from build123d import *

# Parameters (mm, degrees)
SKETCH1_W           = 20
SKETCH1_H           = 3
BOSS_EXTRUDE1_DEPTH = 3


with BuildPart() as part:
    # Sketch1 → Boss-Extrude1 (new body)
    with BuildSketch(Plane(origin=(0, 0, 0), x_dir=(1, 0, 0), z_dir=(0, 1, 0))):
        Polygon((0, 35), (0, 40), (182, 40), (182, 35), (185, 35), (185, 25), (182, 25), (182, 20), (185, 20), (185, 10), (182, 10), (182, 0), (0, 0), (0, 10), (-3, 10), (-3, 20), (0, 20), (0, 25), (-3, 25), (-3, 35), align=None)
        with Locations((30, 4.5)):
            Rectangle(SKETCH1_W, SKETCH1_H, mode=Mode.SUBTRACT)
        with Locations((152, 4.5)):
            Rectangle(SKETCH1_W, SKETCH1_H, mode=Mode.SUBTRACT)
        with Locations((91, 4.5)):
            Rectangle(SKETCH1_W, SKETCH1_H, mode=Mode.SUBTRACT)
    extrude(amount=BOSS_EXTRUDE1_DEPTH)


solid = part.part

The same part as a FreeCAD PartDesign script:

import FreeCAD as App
import Part
import Sketcher
from FreeCAD import Vector
Q = App.Units.Quantity

doc = App.newDocument("Part")
body = doc.addObject("PartDesign::Body", "Body")

sketch1 = body.newObject("Sketcher::SketchObject", "Sketch")
sketch1.AttachmentSupport = (doc.getObject("XZ_Plane"), [""])
sketch1.MapMode = "FlatFace"
sketch1.addGeometry([
    Part.LineSegment(Vector(0, -40, 0), Vector(0, -35, 0)),
    Part.LineSegment(Vector(0, -35, 0), Vector(-3, -35, 0)),
    Part.LineSegment(Vector(-3, -35, 0), Vector(-3, -25, 0)),
    Part.LineSegment(Vector(-3, -25, 0), Vector(0, -25, 0)),
    Part.LineSegment(Vector(0, -25, 0), Vector(0, -20, 0)),
    Part.LineSegment(Vector(0, -20, 0), Vector(-3, -20, 0)),
    Part.LineSegment(Vector(-3, -20, 0), Vector(-3, -10, 0)),
    Part.LineSegment(Vector(-3, -10, 0), Vector(0, -10, 0)),
    Part.LineSegment(Vector(0, -10, 0), Vector(0, 0, 0)),
    Part.LineSegment(Vector(0, 0, 0), Vector(182, 0, 0)),
    Part.LineSegment(Vector(182, 0, 0), Vector(182, -10, 0)),
    Part.LineSegment(Vector(182, -10, 0), Vector(185, -10, 0)),
    Part.LineSegment(Vector(185, -10, 0), Vector(185, -20, 0)),
    Part.LineSegment(Vector(185, -20, 0), Vector(182, -20, 0)),
    Part.LineSegment(Vector(182, -20, 0), Vector(182, -25, 0)),
    Part.LineSegment(Vector(182, -25, 0), Vector(185, -25, 0)),
    Part.LineSegment(Vector(185, -25, 0), Vector(185, -35, 0)),
    Part.LineSegment(Vector(185, -35, 0), Vector(182, -35, 0)),
    Part.LineSegment(Vector(182, -35, 0), Vector(182, -40, 0)),
    Part.LineSegment(Vector(182, -40, 0), Vector(0, -40, 0)),
    Part.LineSegment(Vector(142, -3, 0), Vector(142, -6, 0)),
    Part.LineSegment(Vector(142, -6, 0), Vector(162, -6, 0)),
    Part.LineSegment(Vector(162, -6, 0), Vector(162, -3, 0)),
    Part.LineSegment(Vector(162, -3, 0), Vector(142, -3, 0)),
    Part.LineSegment(Vector(81, -3, 0), Vector(81, -6, 0)),
    Part.LineSegment(Vector(81, -6, 0), Vector(101, -6, 0)),
    Part.LineSegment(Vector(101, -6, 0), Vector(101, -3, 0)),
    Part.LineSegment(Vector(101, -3, 0), Vector(81, -3, 0)),
    Part.LineSegment(Vector(20, -3, 0), Vector(20, -6, 0)),
    Part.LineSegment(Vector(20, -6, 0), Vector(40, -6, 0)),
    Part.LineSegment(Vector(40, -6, 0), Vector(40, -3, 0)),
    Part.LineSegment(Vector(40, -3, 0), Vector(20, -3, 0)),
], False)
sketch1.addConstraint([
    Sketcher.Constraint("Coincident", 0, 2, 1, 1),
    Sketcher.Constraint("Coincident", 1, 2, 2, 1),
    Sketcher.Constraint("Coincident", 2, 2, 3, 1),
    Sketcher.Constraint("Coincident", 3, 2, 4, 1),
    Sketcher.Constraint("Coincident", 4, 2, 5, 1),
    Sketcher.Constraint("Coincident", 5, 2, 6, 1),
    Sketcher.Constraint("Coincident", 6, 2, 7, 1),
    Sketcher.Constraint("Coincident", 7, 2, 8, 1),
    Sketcher.Constraint("Coincident", 8, 2, 9, 1),
    Sketcher.Constraint("Coincident", 9, 2, 10, 1),
    Sketcher.Constraint("Coincident", 10, 2, 11, 1),
    Sketcher.Constraint("Coincident", 11, 2, 12, 1),
    Sketcher.Constraint("Coincident", 12, 2, 13, 1),
    Sketcher.Constraint("Coincident", 13, 2, 14, 1),
    Sketcher.Constraint("Coincident", 14, 2, 15, 1),
    Sketcher.Constraint("Coincident", 15, 2, 16, 1),
    Sketcher.Constraint("Coincident", 16, 2, 17, 1),
    Sketcher.Constraint("Coincident", 17, 2, 18, 1),
    Sketcher.Constraint("Coincident", 18, 2, 19, 1),
    Sketcher.Constraint("Coincident", 19, 2, 0, 1),
    Sketcher.Constraint("Coincident", 20, 2, 21, 1),
    Sketcher.Constraint("Coincident", 21, 2, 22, 1),
    Sketcher.Constraint("Coincident", 22, 2, 23, 1),
    Sketcher.Constraint("Coincident", 23, 2, 20, 1),
    Sketcher.Constraint("Coincident", 24, 2, 25, 1),
    Sketcher.Constraint("Coincident", 25, 2, 26, 1),
    Sketcher.Constraint("Coincident", 26, 2, 27, 1),
    Sketcher.Constraint("Coincident", 27, 2, 24, 1),
    Sketcher.Constraint("Coincident", 28, 2, 29, 1),
    Sketcher.Constraint("Coincident", 29, 2, 30, 1),
    Sketcher.Constraint("Coincident", 30, 2, 31, 1),
    Sketcher.Constraint("Coincident", 31, 2, 28, 1),
    Sketcher.Constraint("Vertical", 0),
    Sketcher.Constraint("Horizontal", 1),
    Sketcher.Constraint("Vertical", 2),
    Sketcher.Constraint("Horizontal", 3),
    Sketcher.Constraint("Vertical", 4),
    Sketcher.Constraint("Horizontal", 5),
    Sketcher.Constraint("Vertical", 6),
    Sketcher.Constraint("Horizontal", 7),
    Sketcher.Constraint("Vertical", 8),
    Sketcher.Constraint("Horizontal", 9),
    Sketcher.Constraint("Vertical", 10),
    Sketcher.Constraint("Horizontal", 11),
    Sketcher.Constraint("Vertical", 12),
    Sketcher.Constraint("Horizontal", 13),
    Sketcher.Constraint("Vertical", 14),
    Sketcher.Constraint("Horizontal", 15),
    Sketcher.Constraint("Vertical", 16),
    Sketcher.Constraint("Horizontal", 17),
    Sketcher.Constraint("Vertical", 18),
    Sketcher.Constraint("Horizontal", 19),
    Sketcher.Constraint("Vertical", 20),
    Sketcher.Constraint("Horizontal", 21),
    Sketcher.Constraint("Vertical", 22),
    Sketcher.Constraint("Horizontal", 23),
    Sketcher.Constraint("Vertical", 24),
    Sketcher.Constraint("Horizontal", 25),
    Sketcher.Constraint("Vertical", 26),
    Sketcher.Constraint("Horizontal", 27),
    Sketcher.Constraint("Vertical", 28),
    Sketcher.Constraint("Horizontal", 29),
    Sketcher.Constraint("Vertical", 30),
    Sketcher.Constraint("Horizontal", 31),
    Sketcher.Constraint("Coincident", 8, 2, -1, 1),
    Sketcher.Constraint("PointOnObject", 0, 2, -2),
    Sketcher.Constraint("PointOnObject", 3, 2, -2),
    Sketcher.Constraint("Horizontal", 7, 2, 10, 2),
    Sketcher.Constraint("Horizontal", 5, 2, 12, 2),
    Sketcher.Constraint("Horizontal", 3, 2, 14, 2),
    Sketcher.Constraint("Horizontal", 1, 2, 16, 2),
    Sketcher.Constraint("Horizontal", 21, 2, 24, 2),
    Sketcher.Constraint("Horizontal", 23, 2, 26, 2),
    Sketcher.Constraint("Horizontal", 25, 2, 28, 2),
    Sketcher.Constraint("Horizontal", 27, 2, 30, 2),
    Sketcher.Constraint("Vertical", 2, 2, 5, 2),
    Sketcher.Constraint("Vertical", 10, 2, 13, 2),
    Sketcher.Constraint("Vertical", 12, 2, 15, 2),
    Sketcher.Constraint("Vertical", 14, 2, 17, 2),
    Sketcher.Constraint("Equal", 7, 11),
    Sketcher.Constraint("Equal", 23, 25),
    Sketcher.Constraint("Equal", 27, 29),
    Sketcher.Constraint("Equal", 0, 4),
    Sketcher.Constraint("Equal", 2, 6),
    Sketcher.Constraint("Equal", 6, 8),
    Sketcher.Constraint("Equal", 17, 20),
    Sketcher.Constraint("DistanceX", 1, 2, 1, 1, Q("3 mm")),
    Sketcher.Constraint("DistanceX", 9, 1, 9, 2, Q("182 mm")),
    Sketcher.Constraint("DistanceX", 21, 1, 21, 2, Q("20 mm")),
    Sketcher.Constraint("DistanceY", 0, 1, 0, 2, Q("5 mm")),
    Sketcher.Constraint("DistanceY", 2, 1, 2, 2, Q("10 mm")),
    Sketcher.Constraint("DistanceX", -1, 1, 20, 2, Q("142 mm")),
    Sketcher.Constraint("DistanceY", 20, 2, -1, 1, Q("6 mm")),
    Sketcher.Constraint("DistanceX", -1, 1, 24, 2, Q("81 mm")),
    Sketcher.Constraint("DistanceX", -1, 1, 28, 2, Q("20 mm")),
])
pad1 = body.newObject("PartDesign::Pad", "Pad")
pad1.Profile = sketch1
pad1.Length = 3
pad1.Reversed = True

doc.recompute()
